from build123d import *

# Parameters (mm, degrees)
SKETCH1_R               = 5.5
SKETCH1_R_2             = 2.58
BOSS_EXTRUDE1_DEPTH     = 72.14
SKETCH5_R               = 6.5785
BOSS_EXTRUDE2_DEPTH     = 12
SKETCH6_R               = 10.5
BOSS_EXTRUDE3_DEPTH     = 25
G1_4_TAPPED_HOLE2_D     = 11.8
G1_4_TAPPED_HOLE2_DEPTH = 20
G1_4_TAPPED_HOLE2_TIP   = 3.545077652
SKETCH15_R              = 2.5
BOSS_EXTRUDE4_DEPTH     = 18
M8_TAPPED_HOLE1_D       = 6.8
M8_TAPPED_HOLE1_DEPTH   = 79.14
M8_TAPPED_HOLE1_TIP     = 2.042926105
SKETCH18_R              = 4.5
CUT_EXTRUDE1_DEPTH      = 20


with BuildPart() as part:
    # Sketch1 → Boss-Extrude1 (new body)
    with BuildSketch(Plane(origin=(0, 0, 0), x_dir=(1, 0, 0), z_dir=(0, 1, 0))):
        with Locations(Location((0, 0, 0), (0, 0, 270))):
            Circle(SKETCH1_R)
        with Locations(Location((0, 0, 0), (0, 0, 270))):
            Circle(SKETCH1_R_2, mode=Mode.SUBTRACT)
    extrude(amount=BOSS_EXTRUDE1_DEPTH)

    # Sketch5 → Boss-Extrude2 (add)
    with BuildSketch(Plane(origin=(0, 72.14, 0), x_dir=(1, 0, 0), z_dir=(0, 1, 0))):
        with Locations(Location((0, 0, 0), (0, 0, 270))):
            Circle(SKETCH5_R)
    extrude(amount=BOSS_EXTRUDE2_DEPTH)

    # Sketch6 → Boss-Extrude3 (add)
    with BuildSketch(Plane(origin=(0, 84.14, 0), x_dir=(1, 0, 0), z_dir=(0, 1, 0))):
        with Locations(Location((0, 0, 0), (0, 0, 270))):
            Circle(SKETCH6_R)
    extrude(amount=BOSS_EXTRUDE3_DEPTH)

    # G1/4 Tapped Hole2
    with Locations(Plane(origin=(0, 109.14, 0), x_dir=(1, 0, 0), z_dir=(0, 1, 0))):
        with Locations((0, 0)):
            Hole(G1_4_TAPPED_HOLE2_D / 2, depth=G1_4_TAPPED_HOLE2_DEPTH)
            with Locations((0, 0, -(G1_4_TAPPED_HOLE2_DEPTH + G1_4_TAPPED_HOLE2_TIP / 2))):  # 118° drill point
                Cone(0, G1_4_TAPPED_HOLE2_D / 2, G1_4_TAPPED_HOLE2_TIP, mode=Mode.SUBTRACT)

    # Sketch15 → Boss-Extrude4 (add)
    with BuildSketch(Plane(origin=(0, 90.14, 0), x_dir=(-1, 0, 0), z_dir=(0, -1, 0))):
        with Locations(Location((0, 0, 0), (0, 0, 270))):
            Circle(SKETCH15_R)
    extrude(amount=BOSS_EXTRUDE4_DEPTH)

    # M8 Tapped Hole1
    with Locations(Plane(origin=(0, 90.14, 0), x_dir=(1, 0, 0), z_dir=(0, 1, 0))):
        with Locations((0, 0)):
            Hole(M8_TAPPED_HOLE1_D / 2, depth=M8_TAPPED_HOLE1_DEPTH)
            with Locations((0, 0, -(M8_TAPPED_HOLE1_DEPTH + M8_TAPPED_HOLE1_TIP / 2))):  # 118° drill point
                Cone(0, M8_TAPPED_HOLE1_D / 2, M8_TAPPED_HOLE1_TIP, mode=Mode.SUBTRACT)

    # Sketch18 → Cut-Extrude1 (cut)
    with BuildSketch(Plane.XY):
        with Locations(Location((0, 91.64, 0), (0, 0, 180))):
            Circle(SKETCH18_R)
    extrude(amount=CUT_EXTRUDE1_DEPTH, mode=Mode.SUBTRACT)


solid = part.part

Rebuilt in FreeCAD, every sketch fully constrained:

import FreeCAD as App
import Part
import Sketcher

doc = App.newDocument("Part")
params = doc.addObject("Spreadsheet::Sheet", "Params")
for row, (alias, value) in enumerate([
    ("sketch1_diameter", "11 mm"),
    ("sketch1_diameter2", "5.16 mm"),
    ("pad1_length", "72.14 mm"),
    ("pad2_length", "12 mm"),
    ("sketch3_diameter", "21 mm"),
    ("pad3_length", "25 mm"),
    ("sketch4_diameter", "11.8 mm"),
    ("hole_diameter", "11.8 mm"),
    ("hole_depth", "20 mm"),
    ("sketch5_diameter", "5 mm"),
    ("pad4_length", "18 mm"),
    ("sketch6_diameter", "6.8 mm"),
    ("hole2_diameter", "6.8 mm"),
    ("hole2_depth", "79.14 mm"),
    ("sketch7_diameter", "9 mm"),
    ("pocket1_length", "20 mm"),
], start=1):
    params.set(f"A{row}", alias)
    params.set(f"B{row}", "=" + value)
    params.setAlias(f"B{row}", alias)

body = doc.addObject("PartDesign::Body", "Body")

# Sketch on XZ plane
sketch1 = doc.addObject("Sketcher::SketchObject", "Sketch")
body.addObject(sketch1)
sketch1.AttachmentSupport = (doc.XZ_Plane, [""])
sketch1.MapMode = "FlatFace"
sketch1.addGeometry(Part.Circle(App.Vector(0, 0, 0), App.Vector(0, 0, 1), 5.5), False)
sketch1.addGeometry(Part.Circle(App.Vector(0, 0, 0), App.Vector(0, 0, 1), 2.6), False)
sketch1.addConstraint(Sketcher.Constraint("Coincident", 0, 3, -1, 1))
sketch1.addConstraint(Sketcher.Constraint("Coincident", 1, 3, -1, 1))
sketch1.addConstraint(Sketcher.Constraint("Diameter", 0, 11.0))
sketch1.addConstraint(Sketcher.Constraint("Diameter", 1, 5.16))
sketch1.setExpression("Constraints[2]", "Params.sketch1_diameter")
sketch1.setExpression("Constraints[3]", "Params.sketch1_diameter2")
pad1 = doc.addObject("PartDesign::Pad", "Pad")
body.addObject(pad1)
pad1.Profile = sketch1
pad1.setExpression("Length", "Params.pad1_length")
pad1.Reversed = True

# Sketch on XZ plane
sketch2 = doc.addObject("Sketcher::SketchObject", "Sketch001")
body.addObject(sketch2)
sketch2.AttachmentSupport = (doc.XZ_Plane, [""])
sketch2.MapMode = "FlatFace"
sketch2.AttachmentOffset = App.Placement(App.Vector(0, 0, -72.14), App.Rotation())
sketch2.addGeometry(Part.Circle(App.Vector(0, 0, 0), App.Vector(0, 0, 1), 7), False)
sketch2.addConstraint(Sketcher.Constraint("Coincident", 0, 3, -1, 1))
sketch2.addConstraint(Sketcher.Constraint("Diameter", 0, 13.157))
pad2 = doc.addObject("PartDesign::Pad", "Pad001")
body.addObject(pad2)
pad2.Profile = sketch2
pad2.setExpression("Length", "Params.pad2_length")
pad2.Reversed = True

# Sketch on XZ plane
sketch3 = doc.addObject("Sketcher::SketchObject", "Sketch002")
body.addObject(sketch3)
sketch3.AttachmentSupport = (doc.XZ_Plane, [""])
sketch3.MapMode = "FlatFace"
sketch3.AttachmentOffset = App.Placement(App.Vector(0, 0, -84.14), App.Rotation())
sketch3.addGeometry(Part.Circle(App.Vector(0, 0, 0), App.Vector(0, 0, 1), 10), False)
sketch3.addConstraint(Sketcher.Constraint("Coincident", 0, 3, -1, 1))
sketch3.addConstraint(Sketcher.Constraint("Diameter", 0, 21.0))
sketch3.setExpression("Constraints[1]", "Params.sketch3_diameter")
pad3 = doc.addObject("PartDesign::Pad", "Pad002")
body.addObject(pad3)
pad3.Profile = sketch3
pad3.setExpression("Length", "Params.pad3_length")
pad3.Reversed = True

# Sketch on XZ plane
sketch4 = doc.addObject("Sketcher::SketchObject", "Sketch003")
body.addObject(sketch4)
sketch4.AttachmentSupport = (doc.XZ_Plane, [""])
sketch4.MapMode = "FlatFace"
sketch4.AttachmentOffset = App.Placement(App.Vector(0, 0, -109.14), App.Rotation())
sketch4.addGeometry(Part.Circle(App.Vector(0, 0, 0), App.Vector(0, 0, 1), 6), False)
sketch4.addConstraint(Sketcher.Constraint("Coincident", 0, 3, -1, 1))
sketch4.addConstraint(Sketcher.Constraint("Diameter", 0, 11.8))
sketch4.setExpression("Constraints[1]", "Params.sketch4_diameter")
doc.recompute()
hole = doc.addObject("PartDesign::Hole", "Hole")
body.addObject(hole)
hole.Profile = sketch4
hole.ThreadType = "None"
hole.setExpression("Diameter", "Params.hole_diameter")
hole.DepthType = "Dimension"
hole.setExpression("Depth", "Params.hole_depth")
hole.DrillPoint = "Angled"
hole.DrillPointAngle = 118
hole.Reversed = True

# Sketch on XZ plane
sketch5 = doc.addObject("Sketcher::SketchObject", "Sketch004")
body.addObject(sketch5)
sketch5.AttachmentSupport = (doc.XZ_Plane, [""])
sketch5.MapMode = "FlatFace"
sketch5.AttachmentOffset = App.Placement(App.Vector(0, 0, -90.14), App.Rotation())
sketch5.addGeometry(Part.Circle(App.Vector(0, 0, 0), App.Vector(0, 0, 1), 2.5), False)
sketch5.addConstraint(Sketcher.Constraint("Coincident", 0, 3, -1, 1))
sketch5.addConstraint(Sketcher.Constraint("Diameter", 0, 5.0))
sketch5.setExpression("Constraints[1]", "Params.sketch5_diameter")
pad4 = doc.addObject("PartDesign::Pad", "Pad003")
body.addObject(pad4)
pad4.Profile = sketch5
pad4.setExpression("Length", "Params.pad4_length")

# Sketch on XZ plane
sketch6 = doc.addObject("Sketcher::SketchObject", "Sketch005")
body.addObject(sketch6)
sketch6.AttachmentSupport = (doc.XZ_Plane, [""])
sketch6.MapMode = "FlatFace"
sketch6.AttachmentOffset = App.Placement(App.Vector(0, 0, -90.14), App.Rotation())
sketch6.addGeometry(Part.Circle(App.Vector(0, 0, 0), App.Vector(0, 0, 1), 3.4), False)
sketch6.addConstraint(Sketcher.Constraint("Coincident", 0, 3, -1, 1))
sketch6.addConstraint(Sketcher.Constraint("Diameter", 0, 6.8))
sketch6.setExpression("Constraints[1]", "Params.sketch6_diameter")
doc.recompute()
hole2 = doc.addObject("PartDesign::Hole", "Hole001")
body.addObject(hole2)
hole2.Profile = sketch6
hole2.ThreadType = "None"
hole2.setExpression("Diameter", "Params.hole2_diameter")
hole2.DepthType = "Dimension"
hole2.setExpression("Depth", "Params.hole2_depth")
hole2.DrillPoint = "Angled"
hole2.DrillPointAngle = 118
hole2.Reversed = True

# Sketch on XY plane
sketch7 = doc.addObject("Sketcher::SketchObject", "Sketch006")
body.addObject(sketch7)
sketch7.AttachmentSupport = (doc.XY_Plane, [""])
sketch7.MapMode = "FlatFace"
sketch7.addGeometry(Part.Circle(App.Vector(0, 91.6, 0), App.Vector(0, 0, 1), 4.5), False)
sketch7.addConstraint(Sketcher.Constraint("PointOnObject", 0, 3, -2))
sketch7.addConstraint(Sketcher.Constraint("Diameter", 0, 9.0))
sketch7.addConstraint(Sketcher.Constraint("DistanceY", -1, 1, 0, 3, 91.64))
sketch7.setExpression("Constraints[1]", "Params.sketch7_diameter")
pocket1 = doc.addObject("PartDesign::Pocket", "Pocket")
body.addObject(pocket1)
pocket1.Profile = sketch7
pocket1.setExpression("Length", "Params.pocket1_length")
pocket1.Reversed = True

doc.recompute()
